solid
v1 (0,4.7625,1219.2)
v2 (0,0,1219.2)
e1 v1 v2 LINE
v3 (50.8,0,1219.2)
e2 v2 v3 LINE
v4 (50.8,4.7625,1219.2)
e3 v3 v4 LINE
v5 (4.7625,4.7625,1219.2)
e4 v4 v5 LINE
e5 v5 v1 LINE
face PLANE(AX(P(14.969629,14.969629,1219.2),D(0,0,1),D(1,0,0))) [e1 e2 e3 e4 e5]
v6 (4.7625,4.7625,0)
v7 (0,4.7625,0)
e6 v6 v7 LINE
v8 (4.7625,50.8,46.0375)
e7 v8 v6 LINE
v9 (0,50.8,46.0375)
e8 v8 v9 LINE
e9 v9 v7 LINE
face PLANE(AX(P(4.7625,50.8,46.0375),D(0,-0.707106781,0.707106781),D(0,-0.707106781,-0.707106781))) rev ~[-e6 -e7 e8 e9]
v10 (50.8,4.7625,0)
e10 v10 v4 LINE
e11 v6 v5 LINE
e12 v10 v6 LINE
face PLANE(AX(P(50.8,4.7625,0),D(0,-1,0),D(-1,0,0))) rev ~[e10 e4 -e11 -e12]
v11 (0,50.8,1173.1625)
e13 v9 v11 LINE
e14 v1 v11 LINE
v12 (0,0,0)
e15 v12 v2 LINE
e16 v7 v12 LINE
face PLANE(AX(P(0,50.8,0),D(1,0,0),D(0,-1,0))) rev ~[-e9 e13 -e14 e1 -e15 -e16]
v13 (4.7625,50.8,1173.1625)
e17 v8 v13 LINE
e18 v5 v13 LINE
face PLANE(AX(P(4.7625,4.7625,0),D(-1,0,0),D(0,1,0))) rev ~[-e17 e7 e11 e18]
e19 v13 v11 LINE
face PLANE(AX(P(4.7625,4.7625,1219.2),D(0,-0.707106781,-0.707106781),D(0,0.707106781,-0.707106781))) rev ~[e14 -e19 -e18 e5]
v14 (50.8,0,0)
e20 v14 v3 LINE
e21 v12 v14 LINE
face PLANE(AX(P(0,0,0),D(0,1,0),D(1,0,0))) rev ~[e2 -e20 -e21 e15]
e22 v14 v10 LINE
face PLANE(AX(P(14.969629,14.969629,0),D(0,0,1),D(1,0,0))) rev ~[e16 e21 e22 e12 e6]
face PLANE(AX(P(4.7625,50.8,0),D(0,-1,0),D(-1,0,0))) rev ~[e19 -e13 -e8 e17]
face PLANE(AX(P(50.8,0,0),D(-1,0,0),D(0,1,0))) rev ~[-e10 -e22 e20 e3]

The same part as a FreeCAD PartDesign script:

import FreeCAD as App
import Part
import Sketcher
from FreeCAD import Vector
Q = App.Units.Quantity

doc = App.newDocument("Part")
body = doc.addObject("PartDesign::Body", "Body")

# Sketch on XY plane
sketch1 = body.newObject("Sketcher::SketchObject", "Sketch")
sketch1.AttachmentSupport = (doc.getObject("XY_Plane"), [""])
sketch1.MapMode = "FlatFace"
sketch1.addGeometry([
    Part.LineSegment(Vector(0, 50.8, 0), Vector(0, 0, 0)),  # 0
    Part.LineSegment(Vector(0, 0, 0), Vector(50.8, 0, 0)),  # 1
    Part.LineSegment(Vector(50.8, 0, 0), Vector(50.8, 4.8, 0)),  # 2
    Part.LineSegment(Vector(50.8, 4.8, 0), Vector(4.8, 4.8, 0)),  # 3
    Part.LineSegment(Vector(4.8, 4.8, 0), Vector(4.8, 50.8, 0)),  # 4
    Part.LineSegment(Vector(4.8, 50.8, 0), Vector(0, 50.8, 0)),  # 5
], False)
sketch1.addConstraint([
    Sketcher.Constraint("Coincident", 0, 2, 1, 1),
    Sketcher.Constraint("Coincident", 1, 2, 2, 1),
    Sketcher.Constraint("Coincident", 2, 2, 3, 1),
    Sketcher.Constraint("Coincident", 3, 2, 4, 1),
    Sketcher.Constraint("Coincident", 4, 2, 5, 1),
    Sketcher.Constraint("Coincident", 5, 2, 0, 1),
    Sketcher.Constraint("Vertical", 0),
    Sketcher.Constraint("Horizontal", 1),
    Sketcher.Constraint("Vertical", 2),
    Sketcher.Constraint("Horizontal", 3),
    Sketcher.Constraint("Vertical", 4),
    Sketcher.Constraint("Horizontal", 5),
    Sketcher.Constraint("Coincident", 0, 2, -1, 1),
    Sketcher.Constraint("Equal", 1, 0),
    Sketcher.Constraint("Equal", 5, 2),
    Sketcher.Constraint("DistanceX", 1, 1, 1, 2, Q("2 in")),
    Sketcher.Constraint("DistanceX", 3, 2, 3, 1, Q("1.8125 in")),
])
pad1 = body.newObject("PartDesign::Pad", "Pad")
pad1.Profile = sketch1
pad1.Length = Q("48 in")

# Sketch on YZ plane
sketch2 = body.newObject("Sketcher::SketchObject", "Sketch001")
sketch2.AttachmentSupport = (doc.getObject("YZ_Plane"), [""])
sketch2.MapMode = "FlatFace"
sketch2.AttachmentOffset = App.Placement(Vector(0, 0, 0.1875 * 25.4), App.Rotation())
sketch2.addGeometry([
    Part.LineSegment(Vector(51, 46, 0), Vector(5, 0, 0)),  # 0
    Part.LineSegment(Vector(5, 0, 0), Vector(51, 0, 0)),  # 1
    Part.LineSegment(Vector(51, 0, 0), Vector(51, 46, 0)),  # 2
    Part.LineSegment(Vector(51, 1219, 0), Vector(5, 1219, 0)),  # 3
    Part.LineSegment(Vector(5, 1219, 0), Vector(51, 1173, 0)),  # 4
    Part.LineSegment(Vector(51, 1173, 0), Vector(51, 1219, 0)),  # 5
], False)
sketch2.addConstraint([
    Sketcher.Constraint("Coincident", 0, 2, 1, 1),
    Sketcher.Constraint("Coincident", 1, 2, 2, 1),
    Sketcher.Constraint("Coincident", 2, 2, 0, 1),
    Sketcher.Constraint("Coincident", 3, 2, 4, 1),
    Sketcher.Constraint("Coincident", 4, 2, 5, 1),
    Sketcher.Constraint("Coincident", 5, 2, 3, 1),
    Sketcher.Constraint("Horizontal", 1),
    Sketcher.Constraint("Vertical", 2),
    Sketcher.Constraint("Horizontal", 3),
    Sketcher.Constraint("Vertical", 5),
    Sketcher.Constraint("PointOnObject", 0, 2, -1),
    Sketcher.Constraint("Perpendicular", 0, 4),
    Sketcher.Constraint("Vertical", 0, 2, 3, 2),
    Sketcher.Constraint("Vertical", 2, 2, 4, 2),
    Sketcher.Constraint("Equal", 3, 2),
    Sketcher.Constraint("DistanceX", -1, 1, 1, 2, Q("2 in")),
    Sketcher.Constraint("DistanceY", -1, 1, 3, 2, Q("48 in")),
    Sketcher.Constraint("DistanceX", 1, 1, 1, 2, Q("1.8125 in")),
])
pocket1 = body.newObject("PartDesign::Pocket", "Pocket")
pocket1.Profile = sketch2
pocket1.Type = "ThroughAll"

doc.recompute()
